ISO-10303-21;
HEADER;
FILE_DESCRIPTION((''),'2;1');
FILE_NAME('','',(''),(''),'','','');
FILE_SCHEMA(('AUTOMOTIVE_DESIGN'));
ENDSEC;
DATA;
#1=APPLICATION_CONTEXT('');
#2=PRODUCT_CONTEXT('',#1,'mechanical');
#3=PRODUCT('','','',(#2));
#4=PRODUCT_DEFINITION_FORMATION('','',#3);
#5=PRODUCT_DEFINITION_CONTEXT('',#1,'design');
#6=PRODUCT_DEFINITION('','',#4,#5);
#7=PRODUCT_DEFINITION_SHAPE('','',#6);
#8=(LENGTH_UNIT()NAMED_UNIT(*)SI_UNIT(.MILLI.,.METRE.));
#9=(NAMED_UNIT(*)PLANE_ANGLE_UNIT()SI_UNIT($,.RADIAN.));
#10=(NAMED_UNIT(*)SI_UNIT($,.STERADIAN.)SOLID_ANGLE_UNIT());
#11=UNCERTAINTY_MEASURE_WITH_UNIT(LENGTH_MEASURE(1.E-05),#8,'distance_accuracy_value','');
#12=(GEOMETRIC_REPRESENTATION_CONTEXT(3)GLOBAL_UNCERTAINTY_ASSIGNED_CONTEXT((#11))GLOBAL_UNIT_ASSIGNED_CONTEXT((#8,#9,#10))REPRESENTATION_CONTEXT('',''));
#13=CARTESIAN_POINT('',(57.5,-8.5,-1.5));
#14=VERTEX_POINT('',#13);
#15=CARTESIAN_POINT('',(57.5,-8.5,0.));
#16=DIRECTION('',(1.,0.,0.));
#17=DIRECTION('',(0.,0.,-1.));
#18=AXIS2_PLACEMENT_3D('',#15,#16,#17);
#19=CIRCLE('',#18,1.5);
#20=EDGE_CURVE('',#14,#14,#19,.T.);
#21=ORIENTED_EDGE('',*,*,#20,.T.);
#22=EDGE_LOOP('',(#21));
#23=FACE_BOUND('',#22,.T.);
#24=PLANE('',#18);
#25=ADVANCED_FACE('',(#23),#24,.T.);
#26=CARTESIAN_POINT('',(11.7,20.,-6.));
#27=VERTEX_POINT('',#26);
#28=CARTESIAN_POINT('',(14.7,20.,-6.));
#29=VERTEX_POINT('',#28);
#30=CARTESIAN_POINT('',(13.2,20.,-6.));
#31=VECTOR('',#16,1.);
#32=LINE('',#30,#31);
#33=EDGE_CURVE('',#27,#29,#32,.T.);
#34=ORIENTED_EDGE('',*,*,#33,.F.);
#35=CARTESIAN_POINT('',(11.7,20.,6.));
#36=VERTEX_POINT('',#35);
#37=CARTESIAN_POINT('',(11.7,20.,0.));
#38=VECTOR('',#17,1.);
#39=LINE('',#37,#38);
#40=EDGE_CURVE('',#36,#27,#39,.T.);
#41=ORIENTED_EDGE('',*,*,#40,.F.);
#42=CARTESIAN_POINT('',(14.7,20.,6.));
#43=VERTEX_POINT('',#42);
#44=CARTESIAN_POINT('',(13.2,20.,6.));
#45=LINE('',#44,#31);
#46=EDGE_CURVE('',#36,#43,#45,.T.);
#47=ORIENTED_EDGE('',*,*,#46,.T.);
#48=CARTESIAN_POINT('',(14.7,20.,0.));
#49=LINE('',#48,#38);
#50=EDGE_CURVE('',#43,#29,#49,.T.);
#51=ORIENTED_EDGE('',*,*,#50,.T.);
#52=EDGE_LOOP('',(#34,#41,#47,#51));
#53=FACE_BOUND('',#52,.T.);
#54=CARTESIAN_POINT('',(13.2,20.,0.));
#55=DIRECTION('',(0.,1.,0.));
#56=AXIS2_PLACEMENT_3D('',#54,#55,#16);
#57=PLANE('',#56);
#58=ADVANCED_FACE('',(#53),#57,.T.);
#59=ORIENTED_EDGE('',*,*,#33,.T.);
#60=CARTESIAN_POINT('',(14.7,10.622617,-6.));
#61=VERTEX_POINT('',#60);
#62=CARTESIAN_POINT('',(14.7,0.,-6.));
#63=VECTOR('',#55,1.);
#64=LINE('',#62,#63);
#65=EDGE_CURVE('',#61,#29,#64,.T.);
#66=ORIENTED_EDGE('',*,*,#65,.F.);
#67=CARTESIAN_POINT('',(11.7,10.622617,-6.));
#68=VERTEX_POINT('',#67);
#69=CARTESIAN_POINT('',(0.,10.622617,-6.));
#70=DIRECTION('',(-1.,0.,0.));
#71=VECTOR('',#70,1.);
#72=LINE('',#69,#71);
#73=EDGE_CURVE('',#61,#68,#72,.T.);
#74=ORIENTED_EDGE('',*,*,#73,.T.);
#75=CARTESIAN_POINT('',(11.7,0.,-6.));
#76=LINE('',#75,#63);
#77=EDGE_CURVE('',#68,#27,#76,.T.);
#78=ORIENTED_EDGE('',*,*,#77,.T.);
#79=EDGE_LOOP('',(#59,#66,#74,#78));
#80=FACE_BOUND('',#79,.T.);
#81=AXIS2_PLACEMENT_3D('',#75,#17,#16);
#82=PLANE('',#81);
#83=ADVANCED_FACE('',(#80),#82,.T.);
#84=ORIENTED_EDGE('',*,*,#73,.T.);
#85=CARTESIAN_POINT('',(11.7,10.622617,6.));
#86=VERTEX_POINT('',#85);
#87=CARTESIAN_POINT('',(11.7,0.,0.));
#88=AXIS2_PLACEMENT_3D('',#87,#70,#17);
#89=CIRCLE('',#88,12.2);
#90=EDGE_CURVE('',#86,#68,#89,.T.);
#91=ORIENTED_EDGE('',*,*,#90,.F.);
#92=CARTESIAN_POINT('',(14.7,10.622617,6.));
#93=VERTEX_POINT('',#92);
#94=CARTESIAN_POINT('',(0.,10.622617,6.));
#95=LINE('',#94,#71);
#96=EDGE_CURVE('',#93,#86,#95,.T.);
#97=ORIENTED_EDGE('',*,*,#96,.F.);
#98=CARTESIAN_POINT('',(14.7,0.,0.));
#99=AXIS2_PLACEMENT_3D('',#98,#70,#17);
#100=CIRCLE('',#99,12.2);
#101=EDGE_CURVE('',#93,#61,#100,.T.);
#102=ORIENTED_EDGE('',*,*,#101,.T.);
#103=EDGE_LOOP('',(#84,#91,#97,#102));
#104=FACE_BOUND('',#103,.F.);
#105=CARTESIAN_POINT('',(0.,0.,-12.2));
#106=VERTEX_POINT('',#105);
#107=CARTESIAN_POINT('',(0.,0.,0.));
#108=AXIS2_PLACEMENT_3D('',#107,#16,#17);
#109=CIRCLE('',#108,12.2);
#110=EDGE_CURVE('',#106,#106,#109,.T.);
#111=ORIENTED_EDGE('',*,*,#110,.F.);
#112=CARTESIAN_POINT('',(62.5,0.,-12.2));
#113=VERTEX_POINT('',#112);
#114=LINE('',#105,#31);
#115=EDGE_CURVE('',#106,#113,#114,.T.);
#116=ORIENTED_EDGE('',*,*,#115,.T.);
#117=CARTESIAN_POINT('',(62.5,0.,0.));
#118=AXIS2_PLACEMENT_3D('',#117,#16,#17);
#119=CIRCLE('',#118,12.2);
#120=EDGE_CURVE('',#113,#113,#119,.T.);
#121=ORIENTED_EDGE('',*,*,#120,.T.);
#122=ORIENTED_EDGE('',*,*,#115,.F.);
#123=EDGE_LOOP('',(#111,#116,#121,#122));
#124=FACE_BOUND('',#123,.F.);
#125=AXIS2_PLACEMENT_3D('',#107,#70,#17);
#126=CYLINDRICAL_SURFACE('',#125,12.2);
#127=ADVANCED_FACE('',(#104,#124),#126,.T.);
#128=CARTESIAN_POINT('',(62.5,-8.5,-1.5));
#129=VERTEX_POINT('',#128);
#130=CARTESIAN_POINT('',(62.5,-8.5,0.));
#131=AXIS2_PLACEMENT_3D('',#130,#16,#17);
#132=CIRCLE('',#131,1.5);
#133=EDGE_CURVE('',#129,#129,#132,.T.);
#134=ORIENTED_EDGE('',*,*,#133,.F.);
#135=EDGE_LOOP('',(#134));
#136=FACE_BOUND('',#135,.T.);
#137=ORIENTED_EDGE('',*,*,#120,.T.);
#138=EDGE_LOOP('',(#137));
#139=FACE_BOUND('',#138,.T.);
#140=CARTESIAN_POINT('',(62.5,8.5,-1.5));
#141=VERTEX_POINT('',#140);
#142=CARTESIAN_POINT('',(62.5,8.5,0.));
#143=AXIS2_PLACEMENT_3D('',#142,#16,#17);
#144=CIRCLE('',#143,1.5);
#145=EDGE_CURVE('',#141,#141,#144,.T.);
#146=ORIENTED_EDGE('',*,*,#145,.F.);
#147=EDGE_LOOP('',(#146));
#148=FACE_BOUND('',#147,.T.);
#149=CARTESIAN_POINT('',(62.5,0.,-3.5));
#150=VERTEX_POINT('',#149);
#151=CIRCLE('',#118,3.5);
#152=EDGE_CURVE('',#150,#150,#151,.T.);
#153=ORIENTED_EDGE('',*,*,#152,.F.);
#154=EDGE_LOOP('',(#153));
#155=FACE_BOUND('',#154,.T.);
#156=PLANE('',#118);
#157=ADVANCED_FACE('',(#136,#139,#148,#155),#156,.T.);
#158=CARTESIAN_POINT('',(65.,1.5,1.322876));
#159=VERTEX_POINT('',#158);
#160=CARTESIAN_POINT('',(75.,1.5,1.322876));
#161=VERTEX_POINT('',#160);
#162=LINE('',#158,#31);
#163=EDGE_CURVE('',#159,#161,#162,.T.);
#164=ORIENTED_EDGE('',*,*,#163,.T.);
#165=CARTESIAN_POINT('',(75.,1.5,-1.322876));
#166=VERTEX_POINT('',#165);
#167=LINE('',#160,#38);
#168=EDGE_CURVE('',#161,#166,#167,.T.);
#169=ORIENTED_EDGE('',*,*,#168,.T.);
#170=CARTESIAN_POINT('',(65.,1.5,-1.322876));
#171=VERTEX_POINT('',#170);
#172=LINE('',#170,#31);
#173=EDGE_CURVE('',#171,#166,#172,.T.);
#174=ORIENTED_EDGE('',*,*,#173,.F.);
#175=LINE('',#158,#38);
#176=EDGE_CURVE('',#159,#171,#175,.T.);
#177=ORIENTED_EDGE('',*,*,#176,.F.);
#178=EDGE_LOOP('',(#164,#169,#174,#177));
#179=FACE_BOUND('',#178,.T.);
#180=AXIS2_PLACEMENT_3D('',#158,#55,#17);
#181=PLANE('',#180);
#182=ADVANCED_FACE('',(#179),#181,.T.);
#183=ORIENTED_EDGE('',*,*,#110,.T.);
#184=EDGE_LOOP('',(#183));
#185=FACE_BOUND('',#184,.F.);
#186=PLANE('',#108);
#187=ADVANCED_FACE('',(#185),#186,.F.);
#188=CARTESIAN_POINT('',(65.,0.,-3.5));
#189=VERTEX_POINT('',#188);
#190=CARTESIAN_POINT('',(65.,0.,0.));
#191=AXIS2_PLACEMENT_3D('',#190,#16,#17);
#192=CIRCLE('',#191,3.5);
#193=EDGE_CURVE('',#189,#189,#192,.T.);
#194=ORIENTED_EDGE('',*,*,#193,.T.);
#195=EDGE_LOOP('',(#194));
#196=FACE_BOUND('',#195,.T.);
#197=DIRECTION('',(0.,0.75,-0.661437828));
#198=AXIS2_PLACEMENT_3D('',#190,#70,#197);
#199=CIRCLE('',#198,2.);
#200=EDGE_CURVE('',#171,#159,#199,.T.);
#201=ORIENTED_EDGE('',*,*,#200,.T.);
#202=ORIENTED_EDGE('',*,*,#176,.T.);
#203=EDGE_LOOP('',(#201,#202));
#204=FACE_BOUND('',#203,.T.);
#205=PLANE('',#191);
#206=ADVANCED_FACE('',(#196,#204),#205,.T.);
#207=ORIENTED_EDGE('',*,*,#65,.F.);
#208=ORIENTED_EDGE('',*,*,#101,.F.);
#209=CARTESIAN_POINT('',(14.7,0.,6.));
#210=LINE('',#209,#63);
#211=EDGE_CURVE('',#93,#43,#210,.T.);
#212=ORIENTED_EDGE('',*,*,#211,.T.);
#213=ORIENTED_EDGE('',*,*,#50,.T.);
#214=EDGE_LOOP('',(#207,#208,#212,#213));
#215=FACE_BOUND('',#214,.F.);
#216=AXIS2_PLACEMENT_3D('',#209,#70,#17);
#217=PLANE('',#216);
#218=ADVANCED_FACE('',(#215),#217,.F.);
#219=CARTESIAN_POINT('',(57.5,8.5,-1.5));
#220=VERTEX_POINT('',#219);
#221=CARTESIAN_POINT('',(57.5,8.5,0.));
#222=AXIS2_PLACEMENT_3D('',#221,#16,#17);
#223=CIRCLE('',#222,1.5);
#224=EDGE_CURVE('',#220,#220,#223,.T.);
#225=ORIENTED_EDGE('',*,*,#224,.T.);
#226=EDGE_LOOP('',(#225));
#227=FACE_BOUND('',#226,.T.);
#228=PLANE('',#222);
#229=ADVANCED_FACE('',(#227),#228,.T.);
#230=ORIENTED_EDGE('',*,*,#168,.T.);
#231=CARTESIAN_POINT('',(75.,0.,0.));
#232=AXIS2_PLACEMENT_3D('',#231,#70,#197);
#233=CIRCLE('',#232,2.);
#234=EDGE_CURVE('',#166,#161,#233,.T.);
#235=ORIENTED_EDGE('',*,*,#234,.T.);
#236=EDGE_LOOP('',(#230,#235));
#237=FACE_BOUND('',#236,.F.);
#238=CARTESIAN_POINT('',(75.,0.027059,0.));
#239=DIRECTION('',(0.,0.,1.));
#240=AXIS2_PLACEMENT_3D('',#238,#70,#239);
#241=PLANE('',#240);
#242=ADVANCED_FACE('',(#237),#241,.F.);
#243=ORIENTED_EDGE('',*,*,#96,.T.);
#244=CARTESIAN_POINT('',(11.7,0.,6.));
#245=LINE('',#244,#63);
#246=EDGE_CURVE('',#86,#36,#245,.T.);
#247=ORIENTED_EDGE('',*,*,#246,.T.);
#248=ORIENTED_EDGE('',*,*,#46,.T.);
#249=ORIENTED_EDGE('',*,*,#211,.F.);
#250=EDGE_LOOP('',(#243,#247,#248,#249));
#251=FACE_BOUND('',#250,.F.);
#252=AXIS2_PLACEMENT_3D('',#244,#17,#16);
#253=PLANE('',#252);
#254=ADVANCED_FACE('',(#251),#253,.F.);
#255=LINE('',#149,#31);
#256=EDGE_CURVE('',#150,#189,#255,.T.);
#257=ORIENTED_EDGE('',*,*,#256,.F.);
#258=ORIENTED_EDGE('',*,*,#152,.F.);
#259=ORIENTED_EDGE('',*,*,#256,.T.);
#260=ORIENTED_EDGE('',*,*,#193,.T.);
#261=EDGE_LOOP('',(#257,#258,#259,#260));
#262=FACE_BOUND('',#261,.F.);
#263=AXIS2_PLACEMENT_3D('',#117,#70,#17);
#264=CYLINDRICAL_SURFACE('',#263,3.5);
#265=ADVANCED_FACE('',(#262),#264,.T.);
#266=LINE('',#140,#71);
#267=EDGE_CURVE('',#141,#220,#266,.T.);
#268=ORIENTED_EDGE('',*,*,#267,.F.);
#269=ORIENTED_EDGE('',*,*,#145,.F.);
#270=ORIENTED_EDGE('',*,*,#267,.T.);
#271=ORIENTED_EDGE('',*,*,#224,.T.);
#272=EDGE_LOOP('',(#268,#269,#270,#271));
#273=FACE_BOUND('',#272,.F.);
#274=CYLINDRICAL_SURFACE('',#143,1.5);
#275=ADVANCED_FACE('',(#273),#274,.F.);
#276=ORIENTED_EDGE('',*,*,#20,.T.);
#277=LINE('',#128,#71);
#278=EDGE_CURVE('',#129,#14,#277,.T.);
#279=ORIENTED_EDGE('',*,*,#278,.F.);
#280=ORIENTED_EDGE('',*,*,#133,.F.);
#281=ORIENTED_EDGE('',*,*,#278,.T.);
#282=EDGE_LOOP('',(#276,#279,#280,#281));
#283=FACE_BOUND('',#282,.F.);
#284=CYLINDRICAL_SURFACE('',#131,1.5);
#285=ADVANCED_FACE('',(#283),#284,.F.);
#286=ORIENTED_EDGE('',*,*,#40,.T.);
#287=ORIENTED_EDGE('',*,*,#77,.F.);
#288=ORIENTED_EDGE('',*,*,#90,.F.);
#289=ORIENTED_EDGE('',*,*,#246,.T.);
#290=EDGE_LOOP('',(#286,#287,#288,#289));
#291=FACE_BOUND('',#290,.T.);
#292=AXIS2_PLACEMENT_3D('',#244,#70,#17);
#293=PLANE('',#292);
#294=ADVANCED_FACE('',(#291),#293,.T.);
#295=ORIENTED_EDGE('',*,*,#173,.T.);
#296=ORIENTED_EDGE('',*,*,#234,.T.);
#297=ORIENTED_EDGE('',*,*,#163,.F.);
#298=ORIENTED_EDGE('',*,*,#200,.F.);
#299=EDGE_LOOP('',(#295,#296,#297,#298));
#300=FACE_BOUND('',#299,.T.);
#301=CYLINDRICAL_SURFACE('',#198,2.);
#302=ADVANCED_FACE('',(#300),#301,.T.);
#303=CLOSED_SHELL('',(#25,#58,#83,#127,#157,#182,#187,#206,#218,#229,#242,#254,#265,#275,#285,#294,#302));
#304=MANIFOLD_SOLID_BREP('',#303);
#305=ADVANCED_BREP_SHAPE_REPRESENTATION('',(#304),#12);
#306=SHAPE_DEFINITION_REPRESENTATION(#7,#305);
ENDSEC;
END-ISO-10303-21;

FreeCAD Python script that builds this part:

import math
import FreeCAD as App
import Part
import Sketcher

V = App.Vector
Q = App.Units.Quantity

doc = App.newDocument("Part")
body = doc.addObject("PartDesign::Body", "Body")

# Sketch on YZ plane
sketch1 = doc.addObject("Sketcher::SketchObject", "Sketch")
body.addObject(sketch1)
sketch1.AttachmentSupport = (doc.YZ_Plane, [""])
sketch1.MapMode = "FlatFace"
sketch1.addGeometry(Part.Circle(V(0, 0, 0), V(0, 0, 1), 12), False)
sketch1.addConstraint(Sketcher.Constraint("Coincident", 0, 3, -1, 1))
sketch1.addConstraint(Sketcher.Constraint("Diameter", 0, Q("24.4 mm")))
pad1 = doc.addObject("PartDesign::Pad", "Pad")
body.addObject(pad1)
pad1.Profile = sketch1
pad1.Length = 62.5

# Sketch on YZ plane
sketch2 = doc.addObject("Sketcher::SketchObject", "Sketch001")
body.addObject(sketch2)
sketch2.AttachmentSupport = (doc.YZ_Plane, [""])
sketch2.MapMode = "FlatFace"
sketch2.AttachmentOffset = App.Placement(V(0, 0, 62.5), App.Rotation())
sketch2.addGeometry(Part.Circle(V(0, 0, 0), V(0, 0, 1), 3.5), False)
sketch2.addConstraint(Sketcher.Constraint("Coincident", 0, 3, -1, 1))
sketch2.addConstraint(Sketcher.Constraint("Diameter", 0, Q("7 mm")))
pad2 = doc.addObject("PartDesign::Pad", "Pad001")
body.addObject(pad2)
pad2.Profile = sketch2
pad2.Length = 2.5

# Sketch on YZ plane
sketch3 = doc.addObject("Sketcher::SketchObject", "Sketch002")
body.addObject(sketch3)
sketch3.AttachmentSupport = (doc.YZ_Plane, [""])
sketch3.MapMode = "FlatFace"
sketch3.AttachmentOffset = App.Placement(V(0, 0, 65), App.Rotation())
sketch3.addGeometry(Part.LineSegment(V(1.5, -1.3, 0), V(1.5, 1.3, 0)), False)
sketch3.addGeometry(Part.ArcOfCircle(Part.Circle(V(0, 0, 0), V(0, 0, 1), 2), math.radians(41), math.radians(319)), False)
sketch3.addConstraint(Sketcher.Constraint("Coincident", 0, 1, 1, 2))
sketch3.addConstraint(Sketcher.Constraint("Coincident", 1, 1, 0, 2))
sketch3.addConstraint(Sketcher.Constraint("Vertical", 0))
sketch3.addConstraint(Sketcher.Constraint("Coincident", 1, 3, -1, 1))
sketch3.addConstraint(Sketcher.Constraint("Radius", 1, Q("2 mm")))
sketch3.addConstraint(Sketcher.Constraint("DistanceX", -1, 1, 0, 1, Q("1.5 mm")))
pad3 = doc.addObject("PartDesign::Pad", "Pad002")
body.addObject(pad3)
pad3.Profile = sketch3
pad3.Length = 10

# Sketch on YZ plane
sketch4 = doc.addObject("Sketcher::SketchObject", "Sketch003")
body.addObject(sketch4)
sketch4.AttachmentSupport = (doc.YZ_Plane, [""])
sketch4.MapMode = "FlatFace"
sketch4.AttachmentOffset = App.Placement(V(0, 0, 62.5), App.Rotation())
sketch4.addGeometry(Part.Circle(V(8.5, 0, 0), V(0, 0, 1), 1.5), False)
sketch4.addGeometry(Part.Circle(V(-8.5, 0, 0), V(0, 0, 1), 1.5), False)
sketch4.addConstraint(Sketcher.Constraint("Equal", 0, 1))
sketch4.addConstraint(Sketcher.Constraint("Symmetric", 0, 3, 1, 3, -1, 1))
sketch4.addConstraint(Sketcher.Constraint("PointOnObject", 0, 3, -1))
sketch4.addConstraint(Sketcher.Constraint("Diameter", 0, Q("3 mm")))
sketch4.addConstraint(Sketcher.Constraint("DistanceX", 1, 3, 0, 3, Q("17 mm")))
pocket1 = doc.addObject("PartDesign::Pocket", "Pocket")
body.addObject(pocket1)
pocket1.Profile = sketch4
pocket1.Length = 5

# Sketch on XZ plane
sketch5 = doc.addObject("Sketcher::SketchObject", "Sketch004")
body.addObject(sketch5)
sketch5.AttachmentSupport = (doc.XZ_Plane, [""])
sketch5.MapMode = "FlatFace"
sketch5.addGeometry(Part.LineSegment(V(11.7, -6, 0), V(11.7, 6, 0)), False)
sketch5.addGeometry(Part.LineSegment(V(11.7, 6, 0), V(14.7, 6, 0)), False)
sketch5.addGeometry(Part.LineSegment(V(14.7, 6, 0), V(14.7, -6, 0)), False)
sketch5.addGeometry(Part.LineSegment(V(14.7, -6, 0), V(11.7, -6, 0)), False)
sketch5.addConstraint(Sketcher.Constraint("Coincident", 0, 2, 1, 1))
sketch5.addConstraint(Sketcher.Constraint("Coincident", 1, 2, 2, 1))
sketch5.addConstraint(Sketcher.Constraint("Coincident", 2, 2, 3, 1))
sketch5.addConstraint(Sketcher.Constraint("Coincident", 3, 2, 0, 1))
sketch5.addConstraint(Sketcher.Constraint("Vertical", 0))
sketch5.addConstraint(Sketcher.Constraint("Horizontal", 1))
sketch5.addConstraint(Sketcher.Constraint("Vertical", 2))
sketch5.addConstraint(Sketcher.Constraint("Horizontal", 3))
sketch5.addConstraint(Sketcher.Constraint("DistanceX", 1, 1, 1, 2, Q("3 mm")))
sketch5.addConstraint(Sketcher.Constraint("DistanceY", 0, 1, 0, 2, Q("12 mm")))
sketch5.addConstraint(Sketcher.Constraint("DistanceY", -1, 1, 0, 2, Q("6 mm")))
sketch5.addConstraint(Sketcher.Constraint("DistanceX", -1, 1, 0, 2, Q("11.7 mm")))
pad4 = doc.addObject("PartDesign::Pad", "Pad003")
body.addObject(pad4)
pad4.Profile = sketch5
pad4.Length = 20
pad4.Reversed = True

doc.recompute()
